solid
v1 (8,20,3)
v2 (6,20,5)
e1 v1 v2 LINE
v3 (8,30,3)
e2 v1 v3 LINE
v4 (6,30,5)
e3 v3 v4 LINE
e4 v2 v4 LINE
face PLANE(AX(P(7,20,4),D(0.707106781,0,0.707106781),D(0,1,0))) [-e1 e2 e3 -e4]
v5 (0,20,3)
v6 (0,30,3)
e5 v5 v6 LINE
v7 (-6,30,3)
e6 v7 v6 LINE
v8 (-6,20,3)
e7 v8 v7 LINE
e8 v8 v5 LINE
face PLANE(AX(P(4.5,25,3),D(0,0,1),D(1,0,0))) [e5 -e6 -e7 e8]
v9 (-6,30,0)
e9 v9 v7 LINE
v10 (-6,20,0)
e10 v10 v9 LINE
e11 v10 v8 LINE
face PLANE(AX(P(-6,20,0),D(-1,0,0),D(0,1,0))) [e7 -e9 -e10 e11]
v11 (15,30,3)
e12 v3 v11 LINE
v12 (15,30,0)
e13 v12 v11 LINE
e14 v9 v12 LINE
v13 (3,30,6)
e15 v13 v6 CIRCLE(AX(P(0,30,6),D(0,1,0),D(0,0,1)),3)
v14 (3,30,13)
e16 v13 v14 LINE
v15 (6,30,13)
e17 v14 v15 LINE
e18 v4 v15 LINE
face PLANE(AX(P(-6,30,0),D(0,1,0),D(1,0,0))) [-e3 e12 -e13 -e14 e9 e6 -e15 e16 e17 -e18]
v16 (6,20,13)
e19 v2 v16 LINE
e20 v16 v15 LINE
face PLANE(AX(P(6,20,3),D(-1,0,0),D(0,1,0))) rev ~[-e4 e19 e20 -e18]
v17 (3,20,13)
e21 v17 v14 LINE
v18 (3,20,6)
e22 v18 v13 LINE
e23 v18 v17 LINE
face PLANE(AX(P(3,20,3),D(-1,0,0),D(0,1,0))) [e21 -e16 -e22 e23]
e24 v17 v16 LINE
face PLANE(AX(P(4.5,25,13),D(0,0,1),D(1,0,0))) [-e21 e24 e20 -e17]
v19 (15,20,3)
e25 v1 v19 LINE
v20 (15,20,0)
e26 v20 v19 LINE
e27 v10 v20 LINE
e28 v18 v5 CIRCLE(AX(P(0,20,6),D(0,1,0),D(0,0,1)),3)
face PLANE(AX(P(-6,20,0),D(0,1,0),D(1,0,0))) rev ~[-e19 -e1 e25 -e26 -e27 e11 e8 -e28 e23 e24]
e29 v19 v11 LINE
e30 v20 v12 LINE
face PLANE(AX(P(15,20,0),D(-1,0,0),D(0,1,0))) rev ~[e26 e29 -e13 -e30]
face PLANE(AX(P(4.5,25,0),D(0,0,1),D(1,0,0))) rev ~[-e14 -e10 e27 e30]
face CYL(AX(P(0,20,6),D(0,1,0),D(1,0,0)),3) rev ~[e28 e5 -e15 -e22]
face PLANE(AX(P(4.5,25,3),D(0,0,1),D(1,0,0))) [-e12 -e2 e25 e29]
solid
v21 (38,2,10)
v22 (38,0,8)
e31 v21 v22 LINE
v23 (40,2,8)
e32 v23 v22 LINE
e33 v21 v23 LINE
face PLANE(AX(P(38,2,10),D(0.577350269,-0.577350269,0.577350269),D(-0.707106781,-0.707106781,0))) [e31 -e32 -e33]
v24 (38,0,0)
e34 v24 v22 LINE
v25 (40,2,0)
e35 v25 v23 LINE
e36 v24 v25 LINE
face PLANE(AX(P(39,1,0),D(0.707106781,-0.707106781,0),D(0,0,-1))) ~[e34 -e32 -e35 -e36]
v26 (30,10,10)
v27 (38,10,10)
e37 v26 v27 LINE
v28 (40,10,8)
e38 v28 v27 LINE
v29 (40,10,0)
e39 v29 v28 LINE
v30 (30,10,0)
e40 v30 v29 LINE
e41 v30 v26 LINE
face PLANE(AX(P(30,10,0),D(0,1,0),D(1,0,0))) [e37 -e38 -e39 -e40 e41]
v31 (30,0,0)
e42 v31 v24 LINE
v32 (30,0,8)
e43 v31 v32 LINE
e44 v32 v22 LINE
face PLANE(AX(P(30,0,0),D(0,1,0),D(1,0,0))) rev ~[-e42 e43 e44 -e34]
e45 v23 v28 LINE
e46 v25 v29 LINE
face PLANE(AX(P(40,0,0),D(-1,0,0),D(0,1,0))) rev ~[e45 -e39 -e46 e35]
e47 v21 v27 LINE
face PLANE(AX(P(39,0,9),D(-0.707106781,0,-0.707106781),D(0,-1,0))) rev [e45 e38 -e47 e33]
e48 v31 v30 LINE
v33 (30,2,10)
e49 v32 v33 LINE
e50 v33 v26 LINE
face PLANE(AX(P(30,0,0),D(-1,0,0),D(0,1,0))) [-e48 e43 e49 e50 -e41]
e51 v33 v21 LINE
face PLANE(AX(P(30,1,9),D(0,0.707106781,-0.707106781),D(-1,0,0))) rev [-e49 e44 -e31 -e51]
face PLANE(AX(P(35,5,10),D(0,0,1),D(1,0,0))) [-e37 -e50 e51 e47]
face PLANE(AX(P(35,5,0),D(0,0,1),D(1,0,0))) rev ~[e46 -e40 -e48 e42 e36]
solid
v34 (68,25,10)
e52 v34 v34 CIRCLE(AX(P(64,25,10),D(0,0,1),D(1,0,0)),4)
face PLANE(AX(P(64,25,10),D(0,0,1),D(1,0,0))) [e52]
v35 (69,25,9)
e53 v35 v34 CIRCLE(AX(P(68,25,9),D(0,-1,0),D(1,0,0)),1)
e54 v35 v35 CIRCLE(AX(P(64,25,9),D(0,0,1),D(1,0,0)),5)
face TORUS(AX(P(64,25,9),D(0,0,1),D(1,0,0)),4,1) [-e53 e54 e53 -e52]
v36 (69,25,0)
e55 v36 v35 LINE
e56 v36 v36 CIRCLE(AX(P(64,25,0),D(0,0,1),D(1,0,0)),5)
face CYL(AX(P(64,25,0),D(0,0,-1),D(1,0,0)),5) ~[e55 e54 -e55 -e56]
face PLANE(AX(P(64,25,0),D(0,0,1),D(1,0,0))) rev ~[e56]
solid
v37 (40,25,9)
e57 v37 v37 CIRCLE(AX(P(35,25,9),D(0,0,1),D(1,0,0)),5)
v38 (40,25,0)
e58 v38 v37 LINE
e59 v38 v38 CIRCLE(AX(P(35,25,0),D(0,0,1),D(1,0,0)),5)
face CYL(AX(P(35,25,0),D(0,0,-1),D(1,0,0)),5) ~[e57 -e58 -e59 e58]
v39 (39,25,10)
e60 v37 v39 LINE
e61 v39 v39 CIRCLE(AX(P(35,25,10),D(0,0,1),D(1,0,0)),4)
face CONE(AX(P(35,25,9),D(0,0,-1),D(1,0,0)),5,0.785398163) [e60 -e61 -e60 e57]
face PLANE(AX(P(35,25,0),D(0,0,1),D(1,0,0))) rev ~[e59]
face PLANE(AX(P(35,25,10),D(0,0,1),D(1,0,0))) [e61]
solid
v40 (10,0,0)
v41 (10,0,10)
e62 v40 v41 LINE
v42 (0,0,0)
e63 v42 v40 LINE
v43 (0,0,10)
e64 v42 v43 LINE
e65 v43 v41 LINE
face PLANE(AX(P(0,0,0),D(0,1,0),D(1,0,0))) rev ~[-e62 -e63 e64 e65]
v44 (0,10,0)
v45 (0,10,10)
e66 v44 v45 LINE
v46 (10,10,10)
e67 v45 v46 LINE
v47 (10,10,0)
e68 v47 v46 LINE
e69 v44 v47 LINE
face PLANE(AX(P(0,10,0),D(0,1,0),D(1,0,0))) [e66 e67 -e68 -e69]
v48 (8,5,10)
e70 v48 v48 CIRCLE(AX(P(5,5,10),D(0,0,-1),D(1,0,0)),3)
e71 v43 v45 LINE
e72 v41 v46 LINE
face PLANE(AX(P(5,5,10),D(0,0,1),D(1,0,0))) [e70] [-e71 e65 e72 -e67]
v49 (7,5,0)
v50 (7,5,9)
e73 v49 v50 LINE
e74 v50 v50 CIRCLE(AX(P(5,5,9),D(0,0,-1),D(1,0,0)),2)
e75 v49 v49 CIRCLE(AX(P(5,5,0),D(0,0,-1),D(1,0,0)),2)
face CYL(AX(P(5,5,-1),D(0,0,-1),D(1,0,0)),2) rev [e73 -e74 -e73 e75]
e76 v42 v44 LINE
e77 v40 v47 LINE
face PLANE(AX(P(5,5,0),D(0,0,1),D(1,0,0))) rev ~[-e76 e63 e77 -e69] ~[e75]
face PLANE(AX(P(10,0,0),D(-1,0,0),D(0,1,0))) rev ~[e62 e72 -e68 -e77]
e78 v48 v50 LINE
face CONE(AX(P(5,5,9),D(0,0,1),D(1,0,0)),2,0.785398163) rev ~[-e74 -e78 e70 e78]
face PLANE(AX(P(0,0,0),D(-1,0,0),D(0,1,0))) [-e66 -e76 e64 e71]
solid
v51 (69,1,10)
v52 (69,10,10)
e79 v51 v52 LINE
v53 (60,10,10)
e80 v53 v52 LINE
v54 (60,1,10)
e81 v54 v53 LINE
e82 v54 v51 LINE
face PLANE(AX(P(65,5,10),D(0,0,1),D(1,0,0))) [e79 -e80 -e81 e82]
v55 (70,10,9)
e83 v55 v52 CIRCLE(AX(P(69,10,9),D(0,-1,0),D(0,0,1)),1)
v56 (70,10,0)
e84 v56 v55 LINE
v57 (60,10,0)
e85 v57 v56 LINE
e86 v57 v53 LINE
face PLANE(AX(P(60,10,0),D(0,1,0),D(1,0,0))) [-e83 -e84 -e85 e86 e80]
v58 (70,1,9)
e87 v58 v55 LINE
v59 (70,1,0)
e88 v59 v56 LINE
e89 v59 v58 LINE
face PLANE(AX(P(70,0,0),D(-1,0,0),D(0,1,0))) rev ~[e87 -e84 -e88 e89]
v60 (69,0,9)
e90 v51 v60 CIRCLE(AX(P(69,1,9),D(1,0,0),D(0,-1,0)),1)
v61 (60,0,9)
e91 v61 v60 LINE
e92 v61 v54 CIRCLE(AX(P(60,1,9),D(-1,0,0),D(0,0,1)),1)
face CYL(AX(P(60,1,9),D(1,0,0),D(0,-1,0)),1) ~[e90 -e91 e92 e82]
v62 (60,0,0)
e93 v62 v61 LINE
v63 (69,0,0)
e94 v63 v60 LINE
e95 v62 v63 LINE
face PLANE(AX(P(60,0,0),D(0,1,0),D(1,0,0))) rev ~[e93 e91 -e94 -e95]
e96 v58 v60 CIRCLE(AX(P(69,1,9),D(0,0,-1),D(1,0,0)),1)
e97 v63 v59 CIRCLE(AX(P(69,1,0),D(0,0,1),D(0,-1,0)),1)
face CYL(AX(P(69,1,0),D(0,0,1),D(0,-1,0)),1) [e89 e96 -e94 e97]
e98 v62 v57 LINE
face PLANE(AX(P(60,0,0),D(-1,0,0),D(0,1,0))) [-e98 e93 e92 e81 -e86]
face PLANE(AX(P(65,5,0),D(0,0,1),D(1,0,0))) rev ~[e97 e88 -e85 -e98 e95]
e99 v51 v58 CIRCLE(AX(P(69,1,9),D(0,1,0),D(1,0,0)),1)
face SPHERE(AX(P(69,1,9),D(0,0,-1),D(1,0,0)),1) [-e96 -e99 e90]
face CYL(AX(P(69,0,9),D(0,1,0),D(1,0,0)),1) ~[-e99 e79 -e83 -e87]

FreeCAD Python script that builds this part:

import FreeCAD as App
import Part
import Sketcher
from FreeCAD import Vector
Q = App.Units.Quantity


def edges_at(feature, points):
    """Names of the edges that pass closest to the given points."""
    edges = feature.Shape.Edges
    near = lambda p: min(range(len(edges)), key=lambda i: edges[i].distToShape(Part.Vertex(*p))[0])
    return sorted({f"Edge{near(p) + 1}" for p in points})


def add_polygon(sketch, points):
    """Adds a closed chain of lines whose ends are joined by coincident constraints."""
    first, n = sketch.GeometryCount, len(points)
    for a, b in zip(points, points[1:] + points[:1]):
        sketch.addGeometry(Part.LineSegment(App.Vector(*a, 0), App.Vector(*b, 0)), False)
    for i in range(n):
        sketch.addConstraint(Sketcher.Constraint("Coincident", first + i, 2, first + (i + 1) % n, 1))

doc = App.newDocument("Part")
body = doc.addObject("PartDesign::Body", "Body")

# Sketch on XY plane
sketch1 = body.newObject("Sketcher::SketchObject", "Sketch")
sketch1.AttachmentSupport = (doc.getObject("XY_Plane"), [""])
sketch1.MapMode = "FlatFace"
add_polygon(sketch1, [(60, 10), (60, 0), (70, 0), (70, 10)])  # lines 0-3
sketch1.addConstraint([
    Sketcher.Constraint("Vertical", 0),
    Sketcher.Constraint("Horizontal", 1),
    Sketcher.Constraint("Vertical", 2),
    Sketcher.Constraint("Horizontal", 3),
    Sketcher.Constraint("PointOnObject", 0, 2, -1),
    Sketcher.Constraint("Equal", 3, 0),
    Sketcher.Constraint("DistanceX", 1, 1, 1, 2, Q("10 mm")),
    Sketcher.Constraint("DistanceX", -1, 1, 0, 2, Q("60 mm")),
])
pad1 = body.newObject("PartDesign::Pad", "Pad")
pad1.Profile = sketch1
pad1.Length = 10
doc.recompute()

fillet = body.newObject("PartDesign::Fillet", "Fillet")
fillet.Base = (pad1, edges_at(pad1, [(70, 0, 5), (70, 5, 10), (65, 0, 10)]))
fillet.Radius = 1
body2 = doc.addObject("PartDesign::Body", "Body001")

# Sketch on XY plane
sketch2 = body2.newObject("Sketcher::SketchObject", "Sketch001")
sketch2.AttachmentSupport = (doc.getObject("XY_Plane001"), [""])
sketch2.MapMode = "FlatFace"
add_polygon(sketch2, [(30, 10), (30, 0), (40, 0), (40, 10)])  # lines 0-3
sketch2.addConstraint([
    Sketcher.Constraint("Vertical", 0),
    Sketcher.Constraint("Horizontal", 1),
    Sketcher.Constraint("Vertical", 2),
    Sketcher.Constraint("Horizontal", 3),
    Sketcher.Constraint("PointOnObject", 0, 2, -1),
    Sketcher.Constraint("Equal", 3, 0),
    Sketcher.Constraint("DistanceX", 1, 1, 1, 2, Q("10 mm")),
    Sketcher.Constraint("DistanceX", -1, 1, 0, 2, Q("30 mm")),
])
pad2 = body2.newObject("PartDesign::Pad", "Pad001")
pad2.Profile = sketch2
pad2.Length = 10
doc.recompute()

chamfer = body2.newObject("PartDesign::Chamfer", "Chamfer")
chamfer.Base = (pad2, edges_at(pad2, [(40, 0, 5), (40, 5, 10), (35, 0, 10)]))
chamfer.Size = 2
body3 = doc.addObject("PartDesign::Body", "Body002")

# Sketch on XY plane
sketch3 = body3.newObject("Sketcher::SketchObject", "Sketch002")
sketch3.AttachmentSupport = (doc.getObject("XY_Plane002"), [""])
sketch3.MapMode = "FlatFace"
sketch3.AttachmentOffset = App.Placement(Vector(0, 0, -1), App.Rotation())
sketch3.addGeometry(Part.Circle(Vector(5, 5, 0), Vector(0, 0, 1), 2), False)
sketch3.addConstraint([
    Sketcher.Constraint("Diameter", 0, Q("4 mm")),
    Sketcher.Constraint("DistanceX", -1, 1, 0, 3, Q("5 mm")),
    Sketcher.Constraint("DistanceY", -1, 1, 0, 3, Q("5 mm")),
])
pad3 = body3.newObject("PartDesign::Pad", "Pad002")
pad3.Profile = sketch3
pad3.Length = 12
body4 = doc.addObject("PartDesign::Body", "Body003")

# Sketch on XY plane
sketch4 = body4.newObject("Sketcher::SketchObject", "Sketch003")
sketch4.AttachmentSupport = (doc.getObject("XY_Plane003"), [""])
sketch4.MapMode = "FlatFace"
add_polygon(sketch4, [(0, 10), (0, 0), (10, 0), (10, 10)])  # lines 0-3
sketch4.addConstraint([
    Sketcher.Constraint("Vertical", 0),
    Sketcher.Constraint("Horizontal", 1),
    Sketcher.Constraint("Vertical", 2),
    Sketcher.Constraint("Horizontal", 3),
    Sketcher.Constraint("Coincident", 0, 2, -1, 1),
    Sketcher.Constraint("Equal", 3, 0),
    Sketcher.Constraint("DistanceX", 1, 1, 1, 2, Q("10 mm")),
])
pad4 = body4.newObject("PartDesign::Pad", "Pad003")
pad4.Profile = sketch4
pad4.Length = 10
doc.recompute()

boolean = body4.newObject("PartDesign::Boolean", "Boolean")
boolean.Type = "Cut"
boolean.addObjects([body3])
doc.recompute()

chamfer2 = body4.newObject("PartDesign::Chamfer", "Chamfer001")
chamfer2.Base = (boolean, edges_at(boolean, [(3, 5, 10)]))
chamfer2.Size = 1
body5 = doc.addObject("PartDesign::Body", "Body004")

# Sketch on XY plane
sketch5 = body5.newObject("Sketcher::SketchObject", "Sketch004")
sketch5.AttachmentSupport = (doc.getObject("XY_Plane004"), [""])
sketch5.MapMode = "FlatFace"
sketch5.addGeometry(Part.Circle(Vector(64, 25, 0), Vector(0, 0, 1), 5), False)
sketch5.addConstraint([
    Sketcher.Constraint("Diameter", 0, Q("10 mm")),
    Sketcher.Constraint("DistanceX", -1, 1, 0, 3, Q("64 mm")),
    Sketcher.Constraint("DistanceY", -1, 1, 0, 3, Q("25 mm")),
])
pad5 = body5.newObject("PartDesign::Pad", "Pad004")
pad5.Profile = sketch5
pad5.Length = 10
doc.recompute()

fillet2 = body5.newObject("PartDesign::Fillet", "Fillet001")
fillet2.Base = (pad5, edges_at(pad5, [(59, 25, 10)]))
fillet2.Radius = 1
body6 = doc.addObject("PartDesign::Body", "Body005")

# Sketch on XY plane
sketch6 = body6.newObject("Sketcher::SketchObject", "Sketch005")
sketch6.AttachmentSupport = (doc.getObject("XY_Plane005"), [""])
sketch6.MapMode = "FlatFace"
sketch6.addGeometry(Part.Circle(Vector(35, 25, 0), Vector(0, 0, 1), 5), False)
sketch6.addConstraint([
    Sketcher.Constraint("Diameter", 0, Q("10 mm")),
    Sketcher.Constraint("DistanceX", -1, 1, 0, 3, Q("35 mm")),
    Sketcher.Constraint("DistanceY", -1, 1, 0, 3, Q("25 mm")),
])
pad6 = body6.newObject("PartDesign::Pad", "Pad005")
pad6.Profile = sketch6
pad6.Length = 10
doc.recompute()

chamfer3 = body6.newObject("PartDesign::Chamfer", "Chamfer002")
chamfer3.Base = (pad6, edges_at(pad6, [(30, 25, 10)]))
chamfer3.Size = 1
body7 = doc.addObject("PartDesign::Body", "Body006")

# Sketch on XY plane
sketch7 = body7.newObject("Sketcher::SketchObject", "Sketch006")
sketch7.AttachmentSupport = (doc.getObject("XY_Plane006"), [""])
sketch7.MapMode = "FlatFace"
sketch7.AttachmentOffset = App.Placement(Vector(0, 0, 3), App.Rotation())
add_polygon(sketch7, [(3, 30), (3, 20), (6, 20), (6, 30)])  # lines 0-3
sketch7.addConstraint([
    Sketcher.Constraint("Vertical", 0),
    Sketcher.Constraint("Horizontal", 1),
    Sketcher.Constraint("Vertical", 2),
    Sketcher.Constraint("Horizontal", 3),
    Sketcher.Constraint("DistanceX", 1, 1, 1, 2, Q("3 mm")),
    Sketcher.Constraint("DistanceY", 0, 2, 0, 1, Q("10 mm")),
    Sketcher.Constraint("DistanceX", -1, 1, 0, 2, Q("3 mm")),
    Sketcher.Constraint("DistanceY", -1, 1, 0, 2, Q("20 mm")),
])
pad7 = body7.newObject("PartDesign::Pad", "Pad006")
pad7.Profile = sketch7
pad7.Length = 10
body8 = doc.addObject("PartDesign::Body", "Body007")

# Sketch on XY plane
sketch8 = body8.newObject("Sketcher::SketchObject", "Sketch007")
sketch8.AttachmentSupport = (doc.getObject("XY_Plane007"), [""])
sketch8.MapMode = "FlatFace"
add_polygon(sketch8, [(-6, 30), (-6, 20), (15, 20), (15, 30)])  # lines 0-3
sketch8.addConstraint([
    Sketcher.Constraint("Vertical", 0),
    Sketcher.Constraint("Horizontal", 1),
    Sketcher.Constraint("Vertical", 2),
    Sketcher.Constraint("Horizontal", 3),
    Sketcher.Constraint("DistanceX", 1, 1, 1, 2, Q("21 mm")),
    Sketcher.Constraint("DistanceY", 0, 2, 0, 1, Q("10 mm")),
    Sketcher.Constraint("DistanceX", 0, 2, -1, 1, Q("6 mm")),
    Sketcher.Constraint("DistanceY", -1, 1, 0, 2, Q("20 mm")),
])
pad8 = body8.newObject("PartDesign::Pad", "Pad007")
pad8.Profile = sketch8
pad8.Length = 3
doc.recompute()

boolean2 = body8.newObject("PartDesign::Boolean", "Boolean001")
boolean2.Type = "Fuse"
boolean2.addObjects([body7])
doc.recompute()

chamfer4 = body8.newObject("PartDesign::Chamfer", "Chamfer003")
chamfer4.Base = (boolean2, edges_at(boolean2, [(6, 25, 3)]))
chamfer4.Size = 2
doc.recompute()

fillet3 = body8.newObject("PartDesign::Fillet", "Fillet002")
fillet3.Base = (chamfer4, edges_at(chamfer4, [(3, 25, 3)]))
fillet3.Radius = 3

doc.recompute()
